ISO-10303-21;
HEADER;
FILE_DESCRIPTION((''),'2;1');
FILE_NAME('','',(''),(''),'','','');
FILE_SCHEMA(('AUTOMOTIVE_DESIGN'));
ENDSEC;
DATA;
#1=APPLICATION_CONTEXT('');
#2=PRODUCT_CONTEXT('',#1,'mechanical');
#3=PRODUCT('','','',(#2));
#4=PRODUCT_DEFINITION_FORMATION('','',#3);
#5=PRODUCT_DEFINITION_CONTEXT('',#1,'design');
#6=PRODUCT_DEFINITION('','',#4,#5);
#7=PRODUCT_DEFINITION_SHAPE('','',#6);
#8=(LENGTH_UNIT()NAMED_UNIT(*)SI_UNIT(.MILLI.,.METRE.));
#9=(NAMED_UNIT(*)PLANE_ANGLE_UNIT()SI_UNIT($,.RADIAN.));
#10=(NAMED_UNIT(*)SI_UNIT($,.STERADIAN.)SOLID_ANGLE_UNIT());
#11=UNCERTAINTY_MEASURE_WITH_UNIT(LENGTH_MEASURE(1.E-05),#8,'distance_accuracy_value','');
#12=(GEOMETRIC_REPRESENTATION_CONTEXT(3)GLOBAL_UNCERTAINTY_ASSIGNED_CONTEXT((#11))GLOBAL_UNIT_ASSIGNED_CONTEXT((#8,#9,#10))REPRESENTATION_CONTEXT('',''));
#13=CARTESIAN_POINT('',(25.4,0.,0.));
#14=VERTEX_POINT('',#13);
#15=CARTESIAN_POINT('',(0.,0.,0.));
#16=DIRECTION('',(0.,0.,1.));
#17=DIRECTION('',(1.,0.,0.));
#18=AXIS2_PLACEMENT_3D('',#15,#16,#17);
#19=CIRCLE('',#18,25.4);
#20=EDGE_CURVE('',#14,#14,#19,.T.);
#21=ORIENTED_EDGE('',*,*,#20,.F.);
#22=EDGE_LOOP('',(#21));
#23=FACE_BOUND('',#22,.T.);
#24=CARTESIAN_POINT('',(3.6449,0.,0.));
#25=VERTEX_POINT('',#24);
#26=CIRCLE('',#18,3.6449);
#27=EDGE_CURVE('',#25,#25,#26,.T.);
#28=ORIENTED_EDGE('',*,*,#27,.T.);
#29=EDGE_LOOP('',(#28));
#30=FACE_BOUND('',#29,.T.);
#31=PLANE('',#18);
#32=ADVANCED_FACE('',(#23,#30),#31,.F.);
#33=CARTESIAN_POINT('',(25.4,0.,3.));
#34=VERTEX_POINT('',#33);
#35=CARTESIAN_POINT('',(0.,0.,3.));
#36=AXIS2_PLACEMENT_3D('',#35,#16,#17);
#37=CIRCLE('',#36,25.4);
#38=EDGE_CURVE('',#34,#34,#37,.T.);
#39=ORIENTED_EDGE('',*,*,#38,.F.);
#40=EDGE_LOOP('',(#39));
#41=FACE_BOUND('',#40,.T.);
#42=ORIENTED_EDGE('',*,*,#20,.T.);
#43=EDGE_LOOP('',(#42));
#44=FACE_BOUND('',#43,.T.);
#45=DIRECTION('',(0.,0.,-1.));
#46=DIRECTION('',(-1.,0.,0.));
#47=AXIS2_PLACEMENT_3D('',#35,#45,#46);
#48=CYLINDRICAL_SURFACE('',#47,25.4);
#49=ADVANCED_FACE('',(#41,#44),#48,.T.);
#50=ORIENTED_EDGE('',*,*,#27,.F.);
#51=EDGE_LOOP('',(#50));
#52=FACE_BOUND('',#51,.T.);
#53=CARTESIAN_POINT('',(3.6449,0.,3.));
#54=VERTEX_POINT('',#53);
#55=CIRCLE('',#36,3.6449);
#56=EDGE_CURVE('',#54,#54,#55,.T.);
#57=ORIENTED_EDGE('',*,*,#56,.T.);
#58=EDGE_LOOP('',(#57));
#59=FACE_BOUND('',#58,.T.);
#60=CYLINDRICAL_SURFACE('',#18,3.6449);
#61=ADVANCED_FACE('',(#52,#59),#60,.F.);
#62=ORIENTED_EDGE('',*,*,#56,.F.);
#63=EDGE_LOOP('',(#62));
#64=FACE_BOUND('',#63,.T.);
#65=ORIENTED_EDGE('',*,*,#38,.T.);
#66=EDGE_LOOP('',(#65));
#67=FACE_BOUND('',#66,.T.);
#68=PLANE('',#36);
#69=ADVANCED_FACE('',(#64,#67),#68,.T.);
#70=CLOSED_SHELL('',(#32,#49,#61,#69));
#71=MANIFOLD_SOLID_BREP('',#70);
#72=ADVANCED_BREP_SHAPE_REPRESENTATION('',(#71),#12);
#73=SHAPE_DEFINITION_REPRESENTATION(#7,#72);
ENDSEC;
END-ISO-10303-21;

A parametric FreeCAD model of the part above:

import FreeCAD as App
import Part
import Sketcher
Q = App.Units.Quantity

doc = App.newDocument("Part")
body = doc.addObject("PartDesign::Body", "Body")

# Sketch on XY plane
sketch1 = body.newObject("Sketcher::SketchObject", "Sketch")
sketch1.AttachmentSupport = (doc.getObject("XY_Plane"), [""])
sketch1.MapMode = "FlatFace"
sketch1.addGeometry(Part.Circle(App.Vector(0, 0, 0), App.Vector(0, 0, 1), 25.4), False)
sketch1.addConstraint(Sketcher.Constraint("Coincident", 0, 3, -1, 1))
sketch1.addConstraint(Sketcher.Constraint("Diameter", 0, Q("2 in")))
pad1 = body.newObject("PartDesign::Pad", "Pad")
pad1.Profile = sketch1
pad1.Length = 3

# Sketch on XY plane
sketch2 = body.newObject("Sketcher::SketchObject", "Sketch001")
sketch2.AttachmentSupport = (doc.getObject("XY_Plane"), [""])
sketch2.MapMode = "FlatFace"
sketch2.AttachmentOffset = App.Placement(App.Vector(0, 0, 3), App.Rotation())
sketch2.addGeometry(Part.Circle(App.Vector(0, 0, 0), App.Vector(0, 0, 1), 3.6449), False)
sketch2.addConstraint(Sketcher.Constraint("Coincident", 0, 3, -1, 1))
sketch2.addConstraint(Sketcher.Constraint("Diameter", 0, Q("0.287 in")))
pocket1 = body.newObject("PartDesign::Pocket", "Pocket")
pocket1.Profile = sketch2
pocket1.Type = "ThroughAll"

doc.recompute()
